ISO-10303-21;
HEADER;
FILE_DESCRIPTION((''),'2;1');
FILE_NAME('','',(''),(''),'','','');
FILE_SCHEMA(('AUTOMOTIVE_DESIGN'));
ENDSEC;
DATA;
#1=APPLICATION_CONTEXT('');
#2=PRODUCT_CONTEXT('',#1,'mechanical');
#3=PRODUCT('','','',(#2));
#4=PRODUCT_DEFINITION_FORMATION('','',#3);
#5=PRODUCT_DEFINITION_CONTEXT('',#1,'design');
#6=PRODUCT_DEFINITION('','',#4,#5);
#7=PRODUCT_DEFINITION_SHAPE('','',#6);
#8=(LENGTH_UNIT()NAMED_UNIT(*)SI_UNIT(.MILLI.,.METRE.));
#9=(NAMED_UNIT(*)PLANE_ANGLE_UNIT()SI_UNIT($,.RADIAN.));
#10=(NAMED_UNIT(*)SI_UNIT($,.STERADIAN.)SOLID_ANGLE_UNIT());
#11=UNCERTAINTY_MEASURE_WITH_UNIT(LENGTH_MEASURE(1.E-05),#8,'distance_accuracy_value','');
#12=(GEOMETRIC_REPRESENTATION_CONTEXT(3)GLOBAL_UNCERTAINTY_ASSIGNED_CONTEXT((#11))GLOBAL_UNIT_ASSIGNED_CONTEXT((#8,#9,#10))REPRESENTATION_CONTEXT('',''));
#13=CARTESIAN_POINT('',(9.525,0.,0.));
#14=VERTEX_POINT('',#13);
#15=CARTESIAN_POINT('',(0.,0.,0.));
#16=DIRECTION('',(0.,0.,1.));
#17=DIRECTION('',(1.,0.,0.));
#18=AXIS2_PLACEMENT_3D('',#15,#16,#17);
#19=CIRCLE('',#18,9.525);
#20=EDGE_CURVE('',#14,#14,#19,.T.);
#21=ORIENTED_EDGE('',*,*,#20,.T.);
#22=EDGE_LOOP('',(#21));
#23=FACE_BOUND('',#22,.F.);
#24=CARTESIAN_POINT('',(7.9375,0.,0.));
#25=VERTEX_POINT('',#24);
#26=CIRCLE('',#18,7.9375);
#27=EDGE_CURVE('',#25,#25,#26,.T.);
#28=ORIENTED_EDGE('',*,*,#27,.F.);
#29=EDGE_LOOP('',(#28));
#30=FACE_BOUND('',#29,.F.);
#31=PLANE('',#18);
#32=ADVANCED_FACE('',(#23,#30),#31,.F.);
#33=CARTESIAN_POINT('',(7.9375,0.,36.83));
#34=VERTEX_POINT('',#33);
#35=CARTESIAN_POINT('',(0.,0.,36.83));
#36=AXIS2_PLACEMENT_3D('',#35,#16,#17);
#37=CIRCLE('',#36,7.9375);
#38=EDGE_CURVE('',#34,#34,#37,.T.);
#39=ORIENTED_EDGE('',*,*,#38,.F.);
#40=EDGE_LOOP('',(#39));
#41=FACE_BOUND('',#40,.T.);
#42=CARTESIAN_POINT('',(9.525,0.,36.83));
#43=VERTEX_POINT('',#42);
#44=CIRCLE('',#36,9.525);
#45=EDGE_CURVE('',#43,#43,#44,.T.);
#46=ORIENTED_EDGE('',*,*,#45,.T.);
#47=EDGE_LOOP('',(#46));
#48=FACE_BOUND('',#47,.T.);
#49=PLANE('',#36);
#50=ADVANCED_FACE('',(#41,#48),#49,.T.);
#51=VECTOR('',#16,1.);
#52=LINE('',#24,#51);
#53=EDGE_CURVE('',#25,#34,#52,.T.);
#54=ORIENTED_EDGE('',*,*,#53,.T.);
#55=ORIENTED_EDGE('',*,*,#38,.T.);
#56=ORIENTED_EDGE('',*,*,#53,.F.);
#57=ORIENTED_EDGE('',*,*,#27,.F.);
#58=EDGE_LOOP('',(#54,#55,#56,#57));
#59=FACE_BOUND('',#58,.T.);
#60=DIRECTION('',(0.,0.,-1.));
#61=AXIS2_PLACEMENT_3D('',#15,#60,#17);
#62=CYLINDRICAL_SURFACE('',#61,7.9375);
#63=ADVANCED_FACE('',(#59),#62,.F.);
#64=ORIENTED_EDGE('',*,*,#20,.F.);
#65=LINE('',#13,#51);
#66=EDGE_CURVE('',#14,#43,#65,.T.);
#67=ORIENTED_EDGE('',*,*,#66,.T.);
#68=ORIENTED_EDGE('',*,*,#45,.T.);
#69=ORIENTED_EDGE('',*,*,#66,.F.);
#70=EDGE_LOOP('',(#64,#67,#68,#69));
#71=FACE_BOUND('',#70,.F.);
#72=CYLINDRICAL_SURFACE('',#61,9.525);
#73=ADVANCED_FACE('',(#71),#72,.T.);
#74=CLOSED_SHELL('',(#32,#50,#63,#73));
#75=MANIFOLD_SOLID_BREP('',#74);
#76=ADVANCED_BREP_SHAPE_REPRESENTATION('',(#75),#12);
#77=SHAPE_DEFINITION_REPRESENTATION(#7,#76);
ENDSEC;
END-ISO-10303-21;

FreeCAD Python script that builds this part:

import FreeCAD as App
import Part
import Sketcher
Q = App.Units.Quantity

doc = App.newDocument("Part")
body = doc.addObject("PartDesign::Body", "Body")

# Sketch on XY plane
sketch1 = body.newObject("Sketcher::SketchObject", "Sketch")
sketch1.AttachmentSupport = (doc.getObject("XY_Plane"), [""])
sketch1.MapMode = "FlatFace"
sketch1.addGeometry(Part.Circle(App.Vector(0, 0, 0), App.Vector(0, 0, 1), 10), False)
sketch1.addGeometry(Part.Circle(App.Vector(0, 0, 0), App.Vector(0, 0, 1), 8), False)
sketch1.addConstraint(Sketcher.Constraint("Coincident", 0, 3, -1, 1))
sketch1.addConstraint(Sketcher.Constraint("Coincident", 1, 3, -1, 1))
sketch1.addConstraint(Sketcher.Constraint("Diameter", 0, Q("0.75 in")))
sketch1.addConstraint(Sketcher.Constraint("Diameter", 1, Q("0.625 in")))
pad1 = body.newObject("PartDesign::Pad", "Pad")
pad1.Profile = sketch1
pad1.Length = Q("1.45 in")

doc.recompute()
